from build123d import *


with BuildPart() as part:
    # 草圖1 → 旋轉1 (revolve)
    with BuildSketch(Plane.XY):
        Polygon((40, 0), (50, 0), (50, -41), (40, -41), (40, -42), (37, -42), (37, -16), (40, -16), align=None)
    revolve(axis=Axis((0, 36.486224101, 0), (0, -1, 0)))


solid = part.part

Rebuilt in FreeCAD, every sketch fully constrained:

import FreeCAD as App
import Part
import Sketcher
from FreeCAD import Vector

doc = App.newDocument("Part")
params = doc.addObject("Spreadsheet::Sheet", "Params")
for row, (alias, value) in enumerate([
    ("sketch1_width", "10 mm"),
    ("sketch1_width2", "3 mm"),
    ("sketch1_height", "16 mm"),
    ("sketch1_height2", "26 mm"),
    ("sketch1_height3", "1 mm"),
    ("revolution_angle", "360 deg"),
], start=1):
    params.set(f"A{row}", alias)
    params.set(f"B{row}", "=" + value)
    params.setAlias(f"B{row}", alias)

body = doc.addObject("PartDesign::Body", "Body")

# Sketch on XY plane
sketch1 = body.newObject("Sketcher::SketchObject", "Sketch")
sketch1.AttachmentSupport = (doc.getObject("XY_Plane"), [""])
sketch1.MapMode = "FlatFace"
sketch1.addGeometry(Part.LineSegment(Vector(50, 0, 0), Vector(40, 0, 0)), False)
sketch1.addGeometry(Part.LineSegment(Vector(40, 0, 0), Vector(40, -16, 0)), False)
sketch1.addGeometry(Part.LineSegment(Vector(40, -16, 0), Vector(37, -16, 0)), False)
sketch1.addGeometry(Part.LineSegment(Vector(37, -16, 0), Vector(37, -42, 0)), False)
sketch1.addGeometry(Part.LineSegment(Vector(37, -42, 0), Vector(40, -42, 0)), False)
sketch1.addGeometry(Part.LineSegment(Vector(40, -42, 0), Vector(40, -41, 0)), False)
sketch1.addGeometry(Part.LineSegment(Vector(40, -41, 0), Vector(50, -41, 0)), False)
sketch1.addGeometry(Part.LineSegment(Vector(50, -41, 0), Vector(50, 0, 0)), False)
sketch1.addConstraint(Sketcher.Constraint("Coincident", 0, 2, 1, 1))
sketch1.addConstraint(Sketcher.Constraint("Coincident", 1, 2, 2, 1))
sketch1.addConstraint(Sketcher.Constraint("Coincident", 2, 2, 3, 1))
sketch1.addConstraint(Sketcher.Constraint("Coincident", 3, 2, 4, 1))
sketch1.addConstraint(Sketcher.Constraint("Coincident", 4, 2, 5, 1))
sketch1.addConstraint(Sketcher.Constraint("Coincident", 5, 2, 6, 1))
sketch1.addConstraint(Sketcher.Constraint("Coincident", 6, 2, 7, 1))
sketch1.addConstraint(Sketcher.Constraint("Coincident", 7, 2, 0, 1))
sketch1.addConstraint(Sketcher.Constraint("Horizontal", 0))
sketch1.addConstraint(Sketcher.Constraint("Vertical", 1))
sketch1.addConstraint(Sketcher.Constraint("Horizontal", 2))
sketch1.addConstraint(Sketcher.Constraint("Vertical", 3))
sketch1.addConstraint(Sketcher.Constraint("Horizontal", 4))
sketch1.addConstraint(Sketcher.Constraint("Vertical", 5))
sketch1.addConstraint(Sketcher.Constraint("Horizontal", 6))
sketch1.addConstraint(Sketcher.Constraint("Vertical", 7))
sketch1.addConstraint(Sketcher.Constraint("PointOnObject", 0, 2, -1))
sketch1.addConstraint(Sketcher.Constraint("Vertical", 1, 2, 4, 2))
sketch1.addConstraint(Sketcher.Constraint("DistanceX", 0, 2, 0, 1, 10.0))
sketch1.addConstraint(Sketcher.Constraint("DistanceX", 2, 2, 2, 1, 3.0))
sketch1.addConstraint(Sketcher.Constraint("DistanceY", 1, 2, 1, 1, 16.0))
sketch1.addConstraint(Sketcher.Constraint("DistanceY", 3, 2, 3, 1, 26.0))
sketch1.addConstraint(Sketcher.Constraint("DistanceY", 5, 1, 5, 2, 1.0))
sketch1.addConstraint(Sketcher.Constraint("DistanceX", -1, 1, 0, 2, 40.0))
sketch1.setExpression("Constraints[18]", "Params.sketch1_width")
sketch1.setExpression("Constraints[19]", "Params.sketch1_width2")
sketch1.setExpression("Constraints[20]", "Params.sketch1_height")
sketch1.setExpression("Constraints[21]", "Params.sketch1_height2")
sketch1.setExpression("Constraints[22]", "Params.sketch1_height3")
revolution = body.newObject("PartDesign::Revolution", "Revolution")
revolution.Profile = sketch1
revolution.ReferenceAxis = (sketch1, ["V_Axis"])
revolution.setExpression("Angle", "Params.revolution_angle")

doc.recompute()
